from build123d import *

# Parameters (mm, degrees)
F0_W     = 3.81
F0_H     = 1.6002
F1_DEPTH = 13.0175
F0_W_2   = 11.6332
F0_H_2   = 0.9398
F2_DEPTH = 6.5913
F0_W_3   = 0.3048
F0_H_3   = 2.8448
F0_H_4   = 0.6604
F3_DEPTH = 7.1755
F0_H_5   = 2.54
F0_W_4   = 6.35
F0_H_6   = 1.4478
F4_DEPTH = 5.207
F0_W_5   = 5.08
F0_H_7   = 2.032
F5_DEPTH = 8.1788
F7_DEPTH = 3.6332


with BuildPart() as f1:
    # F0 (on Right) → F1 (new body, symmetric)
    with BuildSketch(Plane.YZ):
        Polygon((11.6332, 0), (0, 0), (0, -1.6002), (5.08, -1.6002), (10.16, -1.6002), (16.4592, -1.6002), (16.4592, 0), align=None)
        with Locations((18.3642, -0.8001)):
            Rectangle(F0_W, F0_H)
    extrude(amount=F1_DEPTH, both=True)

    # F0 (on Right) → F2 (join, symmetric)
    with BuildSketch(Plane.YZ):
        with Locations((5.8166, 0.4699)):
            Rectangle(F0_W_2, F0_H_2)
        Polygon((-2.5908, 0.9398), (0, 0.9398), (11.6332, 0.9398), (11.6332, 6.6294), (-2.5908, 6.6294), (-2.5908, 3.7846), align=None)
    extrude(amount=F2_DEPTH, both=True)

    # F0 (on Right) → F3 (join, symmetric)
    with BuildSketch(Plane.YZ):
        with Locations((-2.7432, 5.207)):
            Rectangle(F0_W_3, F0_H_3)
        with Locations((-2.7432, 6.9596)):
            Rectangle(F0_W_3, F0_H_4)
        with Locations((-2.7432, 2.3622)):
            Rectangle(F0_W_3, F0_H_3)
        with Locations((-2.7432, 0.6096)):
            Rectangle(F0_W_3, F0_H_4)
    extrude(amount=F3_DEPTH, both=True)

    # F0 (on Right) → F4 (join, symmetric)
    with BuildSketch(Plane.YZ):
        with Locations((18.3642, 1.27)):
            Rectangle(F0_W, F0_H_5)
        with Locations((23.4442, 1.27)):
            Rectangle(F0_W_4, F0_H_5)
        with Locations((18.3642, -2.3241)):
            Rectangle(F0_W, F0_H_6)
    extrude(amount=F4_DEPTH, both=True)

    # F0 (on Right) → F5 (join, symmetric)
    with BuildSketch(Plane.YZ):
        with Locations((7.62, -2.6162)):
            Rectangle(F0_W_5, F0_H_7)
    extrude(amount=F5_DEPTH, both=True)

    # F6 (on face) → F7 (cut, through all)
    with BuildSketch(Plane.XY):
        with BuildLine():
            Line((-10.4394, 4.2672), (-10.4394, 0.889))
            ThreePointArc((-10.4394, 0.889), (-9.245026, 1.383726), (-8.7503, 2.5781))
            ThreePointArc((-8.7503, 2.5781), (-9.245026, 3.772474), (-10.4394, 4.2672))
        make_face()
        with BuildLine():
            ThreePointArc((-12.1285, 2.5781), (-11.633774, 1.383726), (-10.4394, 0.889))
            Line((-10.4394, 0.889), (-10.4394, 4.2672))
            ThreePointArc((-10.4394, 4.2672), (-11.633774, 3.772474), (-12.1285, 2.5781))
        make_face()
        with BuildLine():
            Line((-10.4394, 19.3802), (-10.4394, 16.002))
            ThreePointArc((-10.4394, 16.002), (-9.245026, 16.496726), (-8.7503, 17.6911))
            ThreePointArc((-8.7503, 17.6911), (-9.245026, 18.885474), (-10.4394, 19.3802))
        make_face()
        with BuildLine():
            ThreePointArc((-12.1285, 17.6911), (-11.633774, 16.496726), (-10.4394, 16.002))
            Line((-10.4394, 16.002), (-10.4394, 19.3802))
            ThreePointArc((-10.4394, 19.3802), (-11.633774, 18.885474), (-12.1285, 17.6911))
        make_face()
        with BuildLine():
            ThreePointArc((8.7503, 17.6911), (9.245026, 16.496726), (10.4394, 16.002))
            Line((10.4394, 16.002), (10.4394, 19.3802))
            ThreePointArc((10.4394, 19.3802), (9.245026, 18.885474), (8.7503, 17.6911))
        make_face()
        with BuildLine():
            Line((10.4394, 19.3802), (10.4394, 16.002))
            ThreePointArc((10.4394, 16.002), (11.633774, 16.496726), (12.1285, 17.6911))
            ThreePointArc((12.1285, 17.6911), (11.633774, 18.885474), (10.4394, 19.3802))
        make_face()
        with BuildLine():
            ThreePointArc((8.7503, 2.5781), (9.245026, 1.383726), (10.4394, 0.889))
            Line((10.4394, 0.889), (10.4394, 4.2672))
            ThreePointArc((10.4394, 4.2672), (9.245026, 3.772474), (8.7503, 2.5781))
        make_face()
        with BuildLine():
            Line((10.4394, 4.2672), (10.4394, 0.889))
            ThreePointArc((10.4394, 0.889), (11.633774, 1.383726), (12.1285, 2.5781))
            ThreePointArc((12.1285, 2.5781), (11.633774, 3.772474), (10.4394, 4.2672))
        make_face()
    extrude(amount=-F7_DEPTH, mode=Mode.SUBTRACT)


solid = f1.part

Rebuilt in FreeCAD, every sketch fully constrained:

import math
import FreeCAD as App
import Part
import Sketcher

V = App.Vector
Q = App.Units.Quantity

doc = App.newDocument("Part")
body = doc.addObject("PartDesign::Body", "Body")

sketch1 = body.newObject("Sketcher::SketchObject", "Sketch")
sketch1.AttachmentSupport = (doc.getObject("YZ_Plane"), [""])
sketch1.MapMode = "FlatFace"
sketch1.addGeometry(Part.LineSegment(V(0, 0, 0), V(0, -1.6, 0)), False)
sketch1.addGeometry(Part.LineSegment(V(0, -1.6, 0), V(20.3, -1.6, 0)), False)
sketch1.addGeometry(Part.LineSegment(V(20.3, -1.6, 0), V(20.3, 0, 0)), False)
sketch1.addGeometry(Part.LineSegment(V(20.3, 0, 0), V(0, 0, 0)), False)
sketch1.addConstraint(Sketcher.Constraint("Coincident", 0, 2, 1, 1))
sketch1.addConstraint(Sketcher.Constraint("Coincident", 1, 2, 2, 1))
sketch1.addConstraint(Sketcher.Constraint("Coincident", 2, 2, 3, 1))
sketch1.addConstraint(Sketcher.Constraint("Coincident", 3, 2, 0, 1))
sketch1.addConstraint(Sketcher.Constraint("Vertical", 0))
sketch1.addConstraint(Sketcher.Constraint("Horizontal", 1))
sketch1.addConstraint(Sketcher.Constraint("Vertical", 2))
sketch1.addConstraint(Sketcher.Constraint("Horizontal", 3))
sketch1.addConstraint(Sketcher.Constraint("Coincident", 3, 2, -1, 1))
sketch1.addConstraint(Sketcher.Constraint("DistanceX", 1, 1, 1, 2, Q("0.798 in")))
sketch1.addConstraint(Sketcher.Constraint("DistanceY", 0, 2, 0, 1, Q("0.063 in")))
pad1 = body.newObject("PartDesign::Pad", "Pad")
pad1.Profile = sketch1
pad1.Length = Q("1.025 in")
pad1.Midplane = True

sketch2 = body.newObject("Sketcher::SketchObject", "Sketch001")
sketch2.AttachmentSupport = (doc.getObject("YZ_Plane"), [""])
sketch2.MapMode = "FlatFace"
sketch2.addGeometry(Part.LineSegment(V(0, 0.9, 0), V(0, 0, 0)), False)
sketch2.addGeometry(Part.LineSegment(V(0, 0, 0), V(11.6, 0, 0)), False)
sketch2.addGeometry(Part.LineSegment(V(11.6, 0, 0), V(11.6, 6.6, 0)), False)
sketch2.addGeometry(Part.LineSegment(V(11.6, 6.6, 0), V(-2.6, 6.6, 0)), False)
sketch2.addGeometry(Part.LineSegment(V(-2.6, 6.6, 0), V(-2.6, 0.9, 0)), False)
sketch2.addGeometry(Part.LineSegment(V(-2.6, 0.9, 0), V(0, 0.9, 0)), False)
sketch2.addConstraint(Sketcher.Constraint("Coincident", 0, 2, 1, 1))
sketch2.addConstraint(Sketcher.Constraint("Coincident", 1, 2, 2, 1))
sketch2.addConstraint(Sketcher.Constraint("Coincident", 2, 2, 3, 1))
sketch2.addConstraint(Sketcher.Constraint("Coincident", 3, 2, 4, 1))
sketch2.addConstraint(Sketcher.Constraint("Coincident", 4, 2, 5, 1))
sketch2.addConstraint(Sketcher.Constraint("Coincident", 5, 2, 0, 1))
sketch2.addConstraint(Sketcher.Constraint("Vertical", 0))
sketch2.addConstraint(Sketcher.Constraint("Horizontal", 1))
sketch2.addConstraint(Sketcher.Constraint("Vertical", 2))
sketch2.addConstraint(Sketcher.Constraint("Horizontal", 3))
sketch2.addConstraint(Sketcher.Constraint("Vertical", 4))
sketch2.addConstraint(Sketcher.Constraint("Horizontal", 5))
sketch2.addConstraint(Sketcher.Constraint("Coincident", 0, 2, -1, 1))
sketch2.addConstraint(Sketcher.Constraint("DistanceX", 3, 2, 3, 1, Q("0.56 in")))
sketch2.addConstraint(Sketcher.Constraint("DistanceX", 1, 1, 1, 2, Q("0.458 in")))
sketch2.addConstraint(Sketcher.Constraint("DistanceY", 0, 2, 0, 1, Q("0.037 in")))
sketch2.addConstraint(Sketcher.Constraint("DistanceY", 2, 1, 2, 2, Q("0.261 in")))
pad2 = body.newObject("PartDesign::Pad", "Pad001")
pad2.Profile = sketch2
pad2.Length = Q("0.519 in")
pad2.Midplane = True

sketch3 = body.newObject("Sketcher::SketchObject", "Sketch002")
sketch3.AttachmentSupport = (doc.getObject("YZ_Plane"), [""])
sketch3.MapMode = "FlatFace"
sketch3.addGeometry(Part.LineSegment(V(-2.59, 7.29, 0), V(-2.9, 7.29, 0)), False)
sketch3.addGeometry(Part.LineSegment(V(-2.9, 7.29, 0), V(-2.9, 0.28, 0)), False)
sketch3.addGeometry(Part.LineSegment(V(-2.9, 0.28, 0), V(-2.59, 0.28, 0)), False)
sketch3.addGeometry(Part.LineSegment(V(-2.59, 0.28, 0), V(-2.59, 7.29, 0)), False)
sketch3.addConstraint(Sketcher.Constraint("Coincident", 0, 2, 1, 1))
sketch3.addConstraint(Sketcher.Constraint("Coincident", 1, 2, 2, 1))
sketch3.addConstraint(Sketcher.Constraint("Coincident", 2, 2, 3, 1))
sketch3.addConstraint(Sketcher.Constraint("Coincident", 3, 2, 0, 1))
sketch3.addConstraint(Sketcher.Constraint("Horizontal", 0))
sketch3.addConstraint(Sketcher.Constraint("Vertical", 1))
sketch3.addConstraint(Sketcher.Constraint("Horizontal", 2))
sketch3.addConstraint(Sketcher.Constraint("Vertical", 3))
sketch3.addConstraint(Sketcher.Constraint("DistanceX", 0, 2, 0, 1, Q("0.012 in")))
sketch3.addConstraint(Sketcher.Constraint("DistanceY", 1, 2, 1, 1, Q("0.276 in")))
sketch3.addConstraint(Sketcher.Constraint("DistanceX", 0, 2, -1, 1, Q("0.114 in")))
sketch3.addConstraint(Sketcher.Constraint("DistanceY", -1, 1, 0, 2, Q("0.287 in")))
pad3 = body.newObject("PartDesign::Pad", "Pad002")
pad3.Profile = sketch3
pad3.Length = Q("0.565 in")
pad3.Midplane = True

sketch4 = body.newObject("Sketcher::SketchObject", "Sketch003")
sketch4.AttachmentSupport = (doc.getObject("YZ_Plane"), [""])
sketch4.MapMode = "FlatFace"
sketch4.addGeometry(Part.LineSegment(V(16.5, 2.5, 0), V(16.5, 0, 0)), False)
sketch4.addGeometry(Part.LineSegment(V(16.5, 0, 0), V(26.6, 0, 0)), False)
sketch4.addGeometry(Part.LineSegment(V(26.6, 0, 0), V(26.6, 2.5, 0)), False)
sketch4.addGeometry(Part.LineSegment(V(26.6, 2.5, 0), V(16.5, 2.5, 0)), False)
sketch4.addGeometry(Part.LineSegment(V(16.5, -1.6, 0), V(16.5, -3, 0)), False)
sketch4.addGeometry(Part.LineSegment(V(16.5, -3, 0), V(20.3, -3, 0)), False)
sketch4.addGeometry(Part.LineSegment(V(20.3, -3, 0), V(20.3, -1.6, 0)), False)
sketch4.addGeometry(Part.LineSegment(V(20.3, -1.6, 0), V(16.5, -1.6, 0)), False)
sketch4.addConstraint(Sketcher.Constraint("Coincident", 0, 2, 1, 1))
sketch4.addConstraint(Sketcher.Constraint("Coincident", 1, 2, 2, 1))
sketch4.addConstraint(Sketcher.Constraint("Coincident", 2, 2, 3, 1))
sketch4.addConstraint(Sketcher.Constraint("Coincident", 3, 2, 0, 1))
sketch4.addConstraint(Sketcher.Constraint("Coincident", 4, 2, 5, 1))
sketch4.addConstraint(Sketcher.Constraint("Coincident", 5, 2, 6, 1))
sketch4.addConstraint(Sketcher.Constraint("Coincident", 6, 2, 7, 1))
sketch4.addConstraint(Sketcher.Constraint("Coincident", 7, 2, 4, 1))
sketch4.addConstraint(Sketcher.Constraint("Vertical", 0))
sketch4.addConstraint(Sketcher.Constraint("Horizontal", 1))
sketch4.addConstraint(Sketcher.Constraint("Vertical", 2))
sketch4.addConstraint(Sketcher.Constraint("Horizontal", 3))
sketch4.addConstraint(Sketcher.Constraint("Vertical", 4))
sketch4.addConstraint(Sketcher.Constraint("Horizontal", 5))
sketch4.addConstraint(Sketcher.Constraint("Vertical", 6))
sketch4.addConstraint(Sketcher.Constraint("Horizontal", 7))
sketch4.addConstraint(Sketcher.Constraint("PointOnObject", 0, 2, -1))
sketch4.addConstraint(Sketcher.Constraint("Vertical", 3, 2, 4, 2))
sketch4.addConstraint(Sketcher.Constraint("DistanceX", 1, 1, 1, 2, Q("0.4 in")))
sketch4.addConstraint(Sketcher.Constraint("DistanceY", 0, 2, 0, 1, Q("0.1 in")))
sketch4.addConstraint(Sketcher.Constraint("DistanceX", 5, 1, 5, 2, Q("0.15 in")))
sketch4.addConstraint(Sketcher.Constraint("DistanceY", 4, 2, 4, 1, Q("0.057 in")))
sketch4.addConstraint(Sketcher.Constraint("DistanceY", 4, 2, -1, 1, Q("0.12 in")))
sketch4.addConstraint(Sketcher.Constraint("DistanceX", -1, 1, 0, 2, Q("0.648 in")))
pad4 = body.newObject("PartDesign::Pad", "Pad003")
pad4.Profile = sketch4
pad4.Length = Q("0.41 in")
pad4.Midplane = True

sketch5 = body.newObject("Sketcher::SketchObject", "Sketch004")
sketch5.AttachmentSupport = (doc.getObject("YZ_Plane"), [""])
sketch5.MapMode = "FlatFace"
sketch5.addGeometry(Part.LineSegment(V(5.1, -1.6, 0), V(5.1, -3.6, 0)), False)
sketch5.addGeometry(Part.LineSegment(V(5.1, -3.6, 0), V(10.2, -3.6, 0)), False)
sketch5.addGeometry(Part.LineSegment(V(10.2, -3.6, 0), V(10.2, -1.6, 0)), False)
sketch5.addGeometry(Part.LineSegment(V(10.2, -1.6, 0), V(5.1, -1.6, 0)), False)
sketch5.addConstraint(Sketcher.Constraint("Coincident", 0, 2, 1, 1))
sketch5.addConstraint(Sketcher.Constraint("Coincident", 1, 2, 2, 1))
sketch5.addConstraint(Sketcher.Constraint("Coincident", 2, 2, 3, 1))
sketch5.addConstraint(Sketcher.Constraint("Coincident", 3, 2, 0, 1))
sketch5.addConstraint(Sketcher.Constraint("Vertical", 0))
sketch5.addConstraint(Sketcher.Constraint("Horizontal", 1))
sketch5.addConstraint(Sketcher.Constraint("Vertical", 2))
sketch5.addConstraint(Sketcher.Constraint("Horizontal", 3))
sketch5.addConstraint(Sketcher.Constraint("DistanceX", 1, 1, 1, 2, Q("0.2 in")))
sketch5.addConstraint(Sketcher.Constraint("DistanceY", 0, 2, 0, 1, Q("0.08 in")))
sketch5.addConstraint(Sketcher.Constraint("DistanceX", -1, 1, 0, 2, Q("0.2 in")))
sketch5.addConstraint(Sketcher.Constraint("DistanceY", 0, 2, -1, 1, Q("0.143 in")))
pad5 = body.newObject("PartDesign::Pad", "Pad004")
pad5.Profile = sketch5
pad5.Length = Q("0.644 in")
pad5.Midplane = True

sketch6 = body.newObject("Sketcher::SketchObject", "Sketch005")
sketch6.AttachmentSupport = (doc.getObject("XY_Plane"), [""])
sketch6.MapMode = "FlatFace"
sketch6.addGeometry(Part.ArcOfCircle(Part.Circle(V(-10.4, 2.6, 0), V(0, 0, 1), 1.7), math.radians(-90), math.radians(0)), False)
sketch6.addGeometry(Part.ArcOfCircle(Part.Circle(V(-10.4, 2.6, 0), V(0, 0, 1), 1.7), math.radians(0), math.radians(90)), False)
sketch6.addGeometry(Part.ArcOfCircle(Part.Circle(V(-10.4, 2.6, 0), V(0, 0, 1), 1.7), math.radians(90), math.radians(180)), False)
sketch6.addGeometry(Part.ArcOfCircle(Part.Circle(V(-10.4, 2.6, 0), V(0, 0, 1), 1.7), math.radians(-180), math.radians(-90)), False)
sketch6.addGeometry(Part.ArcOfCircle(Part.Circle(V(-10.4, 17.7, 0), V(0, 0, 1), 1.7), math.radians(-90), math.radians(0)), False)
sketch6.addGeometry(Part.ArcOfCircle(Part.Circle(V(-10.4, 17.7, 0), V(0, 0, 1), 1.7), math.radians(0), math.radians(90)), False)
sketch6.addGeometry(Part.ArcOfCircle(Part.Circle(V(-10.4, 17.7, 0), V(0, 0, 1), 1.7), math.radians(90), math.radians(180)), False)
sketch6.addGeometry(Part.ArcOfCircle(Part.Circle(V(-10.4, 17.7, 0), V(0, 0, 1), 1.7), math.radians(-180), math.radians(-90)), False)
sketch6.addGeometry(Part.ArcOfCircle(Part.Circle(V(10.4, 17.7, 0), V(0, 0, 1), 1.7), math.radians(-180), math.radians(-90)), False)
sketch6.addGeometry(Part.ArcOfCircle(Part.Circle(V(10.4, 17.7, 0), V(0, 0, 1), 1.7), math.radians(-90), math.radians(0)), False)
sketch6.addGeometry(Part.ArcOfCircle(Part.Circle(V(10.4, 17.7, 0), V(0, 0, 1), 1.7), math.radians(0), math.radians(90)), False)
sketch6.addGeometry(Part.ArcOfCircle(Part.Circle(V(10.4, 17.7, 0), V(0, 0, 1), 1.7), math.radians(90), math.radians(180)), False)
sketch6.addGeometry(Part.ArcOfCircle(Part.Circle(V(10.4, 2.6, 0), V(0, 0, 1), 1.7), math.radians(-180), math.radians(-90)), False)
sketch6.addGeometry(Part.ArcOfCircle(Part.Circle(V(10.4, 2.6, 0), V(0, 0, 1), 1.7), math.radians(-90), math.radians(0)), False)
sketch6.addGeometry(Part.ArcOfCircle(Part.Circle(V(10.4, 2.6, 0), V(0, 0, 1), 1.7), math.radians(0), math.radians(90)), False)
sketch6.addGeometry(Part.ArcOfCircle(Part.Circle(V(10.4, 2.6, 0), V(0, 0, 1), 1.7), math.radians(90), math.radians(180)), False)
sketch6.addConstraint(Sketcher.Constraint("Tangent", 0, 2, 1, 1))
sketch6.addConstraint(Sketcher.Constraint("Tangent", 1, 2, 2, 1))
sketch6.addConstraint(Sketcher.Constraint("Tangent", 2, 2, 3, 1))
sketch6.addConstraint(Sketcher.Constraint("Tangent", 3, 2, 0, 1))
sketch6.addConstraint(Sketcher.Constraint("Tangent", 4, 2, 5, 1))
sketch6.addConstraint(Sketcher.Constraint("Tangent", 5, 2, 6, 1))
sketch6.addConstraint(Sketcher.Constraint("Tangent", 6, 2, 7, 1))
sketch6.addConstraint(Sketcher.Constraint("Tangent", 7, 2, 4, 1))
sketch6.addConstraint(Sketcher.Constraint("Tangent", 8, 2, 9, 1))
sketch6.addConstraint(Sketcher.Constraint("Tangent", 9, 2, 10, 1))
sketch6.addConstraint(Sketcher.Constraint("Tangent", 10, 2, 11, 1))
sketch6.addConstraint(Sketcher.Constraint("Tangent", 11, 2, 8, 1))
sketch6.addConstraint(Sketcher.Constraint("Tangent", 12, 2, 13, 1))
sketch6.addConstraint(Sketcher.Constraint("Tangent", 13, 2, 14, 1))
sketch6.addConstraint(Sketcher.Constraint("Tangent", 14, 2, 15, 1))
sketch6.addConstraint(Sketcher.Constraint("Tangent", 15, 2, 12, 1))
sketch6.addConstraint(Sketcher.Constraint("Equal", 0, 1))
sketch6.addConstraint(Sketcher.Constraint("Equal", 3, 4))
sketch6.addConstraint(Sketcher.Constraint("Equal", 4, 5))
sketch6.addConstraint(Sketcher.Constraint("Equal", 7, 8))
sketch6.addConstraint(Sketcher.Constraint("Equal", 8, 9))
sketch6.addConstraint(Sketcher.Constraint("Equal", 11, 12))
sketch6.addConstraint(Sketcher.Constraint("Equal", 12, 13))
sketch6.addConstraint(Sketcher.Constraint("Symmetric", 4, 3, 8, 3, -2))
sketch6.addConstraint(Sketcher.Constraint("Symmetric", 0, 3, 12, 3, -2))
sketch6.addConstraint(Sketcher.Constraint("Horizontal", 15, 3, 0, 2))
sketch6.addConstraint(Sketcher.Constraint("Horizontal", 0, 2, 2, 2))
sketch6.addConstraint(Sketcher.Constraint("Horizontal", 11, 3, 4, 2))
sketch6.addConstraint(Sketcher.Constraint("Horizontal", 4, 2, 6, 2))
sketch6.addConstraint(Sketcher.Constraint("Horizontal", 6, 2, 9, 2))
sketch6.addConstraint(Sketcher.Constraint("Horizontal", 9, 2, 11, 2))
sketch6.addConstraint(Sketcher.Constraint("Horizontal", 2, 2, 13, 2))
sketch6.addConstraint(Sketcher.Constraint("Horizontal", 13, 2, 15, 2))
sketch6.addConstraint(Sketcher.Constraint("Vertical", 3, 3, 4, 3))
sketch6.addConstraint(Sketcher.Constraint("Vertical", 7, 3, 1, 2))
sketch6.addConstraint(Sketcher.Constraint("Vertical", 1, 2, 3, 2))
sketch6.addConstraint(Sketcher.Constraint("Vertical", 3, 2, 5, 2))
sketch6.addConstraint(Sketcher.Constraint("Vertical", 5, 2, 7, 2))
sketch6.addConstraint(Sketcher.Constraint("Vertical", 15, 3, 8, 2))
sketch6.addConstraint(Sketcher.Constraint("Vertical", 8, 2, 10, 2))
sketch6.addConstraint(Sketcher.Constraint("Vertical", 10, 2, 12, 2))
sketch6.addConstraint(Sketcher.Constraint("Vertical", 12, 2, 14, 2))
sketch6.addConstraint(Sketcher.Constraint("Radius", 0, Q("0.0665 in")))
sketch6.addConstraint(Sketcher.Constraint("DistanceY", -1, 1, 7, 2, Q("0.63 in")))
sketch6.addConstraint(Sketcher.Constraint("DistanceX", 0, 3, -1, 1, Q("0.411 in")))
sketch6.addConstraint(Sketcher.Constraint("DistanceY", -1, 1, 1, 2, Q("0.168 in")))
pocket1 = body.newObject("PartDesign::Pocket", "Pocket")
pocket1.Profile = sketch6
pocket1.Type = "ThroughAll"

doc.recompute()
